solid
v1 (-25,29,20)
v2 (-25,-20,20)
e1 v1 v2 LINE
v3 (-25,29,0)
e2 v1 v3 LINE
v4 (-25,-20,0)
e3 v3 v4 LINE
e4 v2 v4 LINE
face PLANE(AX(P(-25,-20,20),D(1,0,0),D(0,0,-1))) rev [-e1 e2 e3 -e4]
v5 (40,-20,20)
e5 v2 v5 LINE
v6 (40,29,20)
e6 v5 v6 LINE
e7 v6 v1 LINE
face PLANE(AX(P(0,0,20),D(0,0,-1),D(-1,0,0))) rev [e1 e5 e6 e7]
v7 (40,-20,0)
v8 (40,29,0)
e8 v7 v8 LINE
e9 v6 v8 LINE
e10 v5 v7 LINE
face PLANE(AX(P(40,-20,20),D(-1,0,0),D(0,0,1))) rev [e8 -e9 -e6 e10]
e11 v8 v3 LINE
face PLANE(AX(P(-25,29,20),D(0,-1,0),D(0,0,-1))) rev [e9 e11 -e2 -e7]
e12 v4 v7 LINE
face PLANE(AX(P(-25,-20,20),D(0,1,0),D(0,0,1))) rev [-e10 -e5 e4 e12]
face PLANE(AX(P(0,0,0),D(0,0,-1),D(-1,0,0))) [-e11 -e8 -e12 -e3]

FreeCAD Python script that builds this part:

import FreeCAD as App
import Part
import Sketcher


def add_polygon(sketch, points):
    """Adds a closed chain of lines whose ends are joined by coincident constraints."""
    first, n = sketch.GeometryCount, len(points)
    for a, b in zip(points, points[1:] + points[:1]):
        sketch.addGeometry(Part.LineSegment(App.Vector(*a, 0), App.Vector(*b, 0)), False)
    for i in range(n):
        sketch.addConstraint(Sketcher.Constraint("Coincident", first + i, 2, first + (i + 1) % n, 1))

doc = App.newDocument("Part")
body = doc.addObject("PartDesign::Body", "Body")

# Sketch on XY plane
sketch1 = body.newObject("Sketcher::SketchObject", "Sketch")
sketch1.AttachmentSupport = (doc.getObject("XY_Plane"), [""])
sketch1.MapMode = "FlatFace"
add_polygon(sketch1, [(-25, 29), (-25, -20), (40, -20), (40, 29)])  # lines 0-3
sketch1.addConstraint(Sketcher.Constraint("Vertical", 0))
sketch1.addConstraint(Sketcher.Constraint("Horizontal", 1))
sketch1.addConstraint(Sketcher.Constraint("Vertical", 2))
sketch1.addConstraint(Sketcher.Constraint("Horizontal", 3))
sketch1.addConstraint(Sketcher.Constraint("DistanceX", 1, 1, 1, 2, 65.0))
sketch1.addConstraint(Sketcher.Constraint("DistanceY", 0, 2, 0, 1, 49.0))
sketch1.addConstraint(Sketcher.Constraint("DistanceX", 0, 2, -1, 1, 25.0))
sketch1.addConstraint(Sketcher.Constraint("DistanceY", 0, 2, -1, 1, 20.0))
pad1 = body.newObject("PartDesign::Pad", "Pad")
pad1.Profile = sketch1
pad1.Length = 20

doc.recompute()
